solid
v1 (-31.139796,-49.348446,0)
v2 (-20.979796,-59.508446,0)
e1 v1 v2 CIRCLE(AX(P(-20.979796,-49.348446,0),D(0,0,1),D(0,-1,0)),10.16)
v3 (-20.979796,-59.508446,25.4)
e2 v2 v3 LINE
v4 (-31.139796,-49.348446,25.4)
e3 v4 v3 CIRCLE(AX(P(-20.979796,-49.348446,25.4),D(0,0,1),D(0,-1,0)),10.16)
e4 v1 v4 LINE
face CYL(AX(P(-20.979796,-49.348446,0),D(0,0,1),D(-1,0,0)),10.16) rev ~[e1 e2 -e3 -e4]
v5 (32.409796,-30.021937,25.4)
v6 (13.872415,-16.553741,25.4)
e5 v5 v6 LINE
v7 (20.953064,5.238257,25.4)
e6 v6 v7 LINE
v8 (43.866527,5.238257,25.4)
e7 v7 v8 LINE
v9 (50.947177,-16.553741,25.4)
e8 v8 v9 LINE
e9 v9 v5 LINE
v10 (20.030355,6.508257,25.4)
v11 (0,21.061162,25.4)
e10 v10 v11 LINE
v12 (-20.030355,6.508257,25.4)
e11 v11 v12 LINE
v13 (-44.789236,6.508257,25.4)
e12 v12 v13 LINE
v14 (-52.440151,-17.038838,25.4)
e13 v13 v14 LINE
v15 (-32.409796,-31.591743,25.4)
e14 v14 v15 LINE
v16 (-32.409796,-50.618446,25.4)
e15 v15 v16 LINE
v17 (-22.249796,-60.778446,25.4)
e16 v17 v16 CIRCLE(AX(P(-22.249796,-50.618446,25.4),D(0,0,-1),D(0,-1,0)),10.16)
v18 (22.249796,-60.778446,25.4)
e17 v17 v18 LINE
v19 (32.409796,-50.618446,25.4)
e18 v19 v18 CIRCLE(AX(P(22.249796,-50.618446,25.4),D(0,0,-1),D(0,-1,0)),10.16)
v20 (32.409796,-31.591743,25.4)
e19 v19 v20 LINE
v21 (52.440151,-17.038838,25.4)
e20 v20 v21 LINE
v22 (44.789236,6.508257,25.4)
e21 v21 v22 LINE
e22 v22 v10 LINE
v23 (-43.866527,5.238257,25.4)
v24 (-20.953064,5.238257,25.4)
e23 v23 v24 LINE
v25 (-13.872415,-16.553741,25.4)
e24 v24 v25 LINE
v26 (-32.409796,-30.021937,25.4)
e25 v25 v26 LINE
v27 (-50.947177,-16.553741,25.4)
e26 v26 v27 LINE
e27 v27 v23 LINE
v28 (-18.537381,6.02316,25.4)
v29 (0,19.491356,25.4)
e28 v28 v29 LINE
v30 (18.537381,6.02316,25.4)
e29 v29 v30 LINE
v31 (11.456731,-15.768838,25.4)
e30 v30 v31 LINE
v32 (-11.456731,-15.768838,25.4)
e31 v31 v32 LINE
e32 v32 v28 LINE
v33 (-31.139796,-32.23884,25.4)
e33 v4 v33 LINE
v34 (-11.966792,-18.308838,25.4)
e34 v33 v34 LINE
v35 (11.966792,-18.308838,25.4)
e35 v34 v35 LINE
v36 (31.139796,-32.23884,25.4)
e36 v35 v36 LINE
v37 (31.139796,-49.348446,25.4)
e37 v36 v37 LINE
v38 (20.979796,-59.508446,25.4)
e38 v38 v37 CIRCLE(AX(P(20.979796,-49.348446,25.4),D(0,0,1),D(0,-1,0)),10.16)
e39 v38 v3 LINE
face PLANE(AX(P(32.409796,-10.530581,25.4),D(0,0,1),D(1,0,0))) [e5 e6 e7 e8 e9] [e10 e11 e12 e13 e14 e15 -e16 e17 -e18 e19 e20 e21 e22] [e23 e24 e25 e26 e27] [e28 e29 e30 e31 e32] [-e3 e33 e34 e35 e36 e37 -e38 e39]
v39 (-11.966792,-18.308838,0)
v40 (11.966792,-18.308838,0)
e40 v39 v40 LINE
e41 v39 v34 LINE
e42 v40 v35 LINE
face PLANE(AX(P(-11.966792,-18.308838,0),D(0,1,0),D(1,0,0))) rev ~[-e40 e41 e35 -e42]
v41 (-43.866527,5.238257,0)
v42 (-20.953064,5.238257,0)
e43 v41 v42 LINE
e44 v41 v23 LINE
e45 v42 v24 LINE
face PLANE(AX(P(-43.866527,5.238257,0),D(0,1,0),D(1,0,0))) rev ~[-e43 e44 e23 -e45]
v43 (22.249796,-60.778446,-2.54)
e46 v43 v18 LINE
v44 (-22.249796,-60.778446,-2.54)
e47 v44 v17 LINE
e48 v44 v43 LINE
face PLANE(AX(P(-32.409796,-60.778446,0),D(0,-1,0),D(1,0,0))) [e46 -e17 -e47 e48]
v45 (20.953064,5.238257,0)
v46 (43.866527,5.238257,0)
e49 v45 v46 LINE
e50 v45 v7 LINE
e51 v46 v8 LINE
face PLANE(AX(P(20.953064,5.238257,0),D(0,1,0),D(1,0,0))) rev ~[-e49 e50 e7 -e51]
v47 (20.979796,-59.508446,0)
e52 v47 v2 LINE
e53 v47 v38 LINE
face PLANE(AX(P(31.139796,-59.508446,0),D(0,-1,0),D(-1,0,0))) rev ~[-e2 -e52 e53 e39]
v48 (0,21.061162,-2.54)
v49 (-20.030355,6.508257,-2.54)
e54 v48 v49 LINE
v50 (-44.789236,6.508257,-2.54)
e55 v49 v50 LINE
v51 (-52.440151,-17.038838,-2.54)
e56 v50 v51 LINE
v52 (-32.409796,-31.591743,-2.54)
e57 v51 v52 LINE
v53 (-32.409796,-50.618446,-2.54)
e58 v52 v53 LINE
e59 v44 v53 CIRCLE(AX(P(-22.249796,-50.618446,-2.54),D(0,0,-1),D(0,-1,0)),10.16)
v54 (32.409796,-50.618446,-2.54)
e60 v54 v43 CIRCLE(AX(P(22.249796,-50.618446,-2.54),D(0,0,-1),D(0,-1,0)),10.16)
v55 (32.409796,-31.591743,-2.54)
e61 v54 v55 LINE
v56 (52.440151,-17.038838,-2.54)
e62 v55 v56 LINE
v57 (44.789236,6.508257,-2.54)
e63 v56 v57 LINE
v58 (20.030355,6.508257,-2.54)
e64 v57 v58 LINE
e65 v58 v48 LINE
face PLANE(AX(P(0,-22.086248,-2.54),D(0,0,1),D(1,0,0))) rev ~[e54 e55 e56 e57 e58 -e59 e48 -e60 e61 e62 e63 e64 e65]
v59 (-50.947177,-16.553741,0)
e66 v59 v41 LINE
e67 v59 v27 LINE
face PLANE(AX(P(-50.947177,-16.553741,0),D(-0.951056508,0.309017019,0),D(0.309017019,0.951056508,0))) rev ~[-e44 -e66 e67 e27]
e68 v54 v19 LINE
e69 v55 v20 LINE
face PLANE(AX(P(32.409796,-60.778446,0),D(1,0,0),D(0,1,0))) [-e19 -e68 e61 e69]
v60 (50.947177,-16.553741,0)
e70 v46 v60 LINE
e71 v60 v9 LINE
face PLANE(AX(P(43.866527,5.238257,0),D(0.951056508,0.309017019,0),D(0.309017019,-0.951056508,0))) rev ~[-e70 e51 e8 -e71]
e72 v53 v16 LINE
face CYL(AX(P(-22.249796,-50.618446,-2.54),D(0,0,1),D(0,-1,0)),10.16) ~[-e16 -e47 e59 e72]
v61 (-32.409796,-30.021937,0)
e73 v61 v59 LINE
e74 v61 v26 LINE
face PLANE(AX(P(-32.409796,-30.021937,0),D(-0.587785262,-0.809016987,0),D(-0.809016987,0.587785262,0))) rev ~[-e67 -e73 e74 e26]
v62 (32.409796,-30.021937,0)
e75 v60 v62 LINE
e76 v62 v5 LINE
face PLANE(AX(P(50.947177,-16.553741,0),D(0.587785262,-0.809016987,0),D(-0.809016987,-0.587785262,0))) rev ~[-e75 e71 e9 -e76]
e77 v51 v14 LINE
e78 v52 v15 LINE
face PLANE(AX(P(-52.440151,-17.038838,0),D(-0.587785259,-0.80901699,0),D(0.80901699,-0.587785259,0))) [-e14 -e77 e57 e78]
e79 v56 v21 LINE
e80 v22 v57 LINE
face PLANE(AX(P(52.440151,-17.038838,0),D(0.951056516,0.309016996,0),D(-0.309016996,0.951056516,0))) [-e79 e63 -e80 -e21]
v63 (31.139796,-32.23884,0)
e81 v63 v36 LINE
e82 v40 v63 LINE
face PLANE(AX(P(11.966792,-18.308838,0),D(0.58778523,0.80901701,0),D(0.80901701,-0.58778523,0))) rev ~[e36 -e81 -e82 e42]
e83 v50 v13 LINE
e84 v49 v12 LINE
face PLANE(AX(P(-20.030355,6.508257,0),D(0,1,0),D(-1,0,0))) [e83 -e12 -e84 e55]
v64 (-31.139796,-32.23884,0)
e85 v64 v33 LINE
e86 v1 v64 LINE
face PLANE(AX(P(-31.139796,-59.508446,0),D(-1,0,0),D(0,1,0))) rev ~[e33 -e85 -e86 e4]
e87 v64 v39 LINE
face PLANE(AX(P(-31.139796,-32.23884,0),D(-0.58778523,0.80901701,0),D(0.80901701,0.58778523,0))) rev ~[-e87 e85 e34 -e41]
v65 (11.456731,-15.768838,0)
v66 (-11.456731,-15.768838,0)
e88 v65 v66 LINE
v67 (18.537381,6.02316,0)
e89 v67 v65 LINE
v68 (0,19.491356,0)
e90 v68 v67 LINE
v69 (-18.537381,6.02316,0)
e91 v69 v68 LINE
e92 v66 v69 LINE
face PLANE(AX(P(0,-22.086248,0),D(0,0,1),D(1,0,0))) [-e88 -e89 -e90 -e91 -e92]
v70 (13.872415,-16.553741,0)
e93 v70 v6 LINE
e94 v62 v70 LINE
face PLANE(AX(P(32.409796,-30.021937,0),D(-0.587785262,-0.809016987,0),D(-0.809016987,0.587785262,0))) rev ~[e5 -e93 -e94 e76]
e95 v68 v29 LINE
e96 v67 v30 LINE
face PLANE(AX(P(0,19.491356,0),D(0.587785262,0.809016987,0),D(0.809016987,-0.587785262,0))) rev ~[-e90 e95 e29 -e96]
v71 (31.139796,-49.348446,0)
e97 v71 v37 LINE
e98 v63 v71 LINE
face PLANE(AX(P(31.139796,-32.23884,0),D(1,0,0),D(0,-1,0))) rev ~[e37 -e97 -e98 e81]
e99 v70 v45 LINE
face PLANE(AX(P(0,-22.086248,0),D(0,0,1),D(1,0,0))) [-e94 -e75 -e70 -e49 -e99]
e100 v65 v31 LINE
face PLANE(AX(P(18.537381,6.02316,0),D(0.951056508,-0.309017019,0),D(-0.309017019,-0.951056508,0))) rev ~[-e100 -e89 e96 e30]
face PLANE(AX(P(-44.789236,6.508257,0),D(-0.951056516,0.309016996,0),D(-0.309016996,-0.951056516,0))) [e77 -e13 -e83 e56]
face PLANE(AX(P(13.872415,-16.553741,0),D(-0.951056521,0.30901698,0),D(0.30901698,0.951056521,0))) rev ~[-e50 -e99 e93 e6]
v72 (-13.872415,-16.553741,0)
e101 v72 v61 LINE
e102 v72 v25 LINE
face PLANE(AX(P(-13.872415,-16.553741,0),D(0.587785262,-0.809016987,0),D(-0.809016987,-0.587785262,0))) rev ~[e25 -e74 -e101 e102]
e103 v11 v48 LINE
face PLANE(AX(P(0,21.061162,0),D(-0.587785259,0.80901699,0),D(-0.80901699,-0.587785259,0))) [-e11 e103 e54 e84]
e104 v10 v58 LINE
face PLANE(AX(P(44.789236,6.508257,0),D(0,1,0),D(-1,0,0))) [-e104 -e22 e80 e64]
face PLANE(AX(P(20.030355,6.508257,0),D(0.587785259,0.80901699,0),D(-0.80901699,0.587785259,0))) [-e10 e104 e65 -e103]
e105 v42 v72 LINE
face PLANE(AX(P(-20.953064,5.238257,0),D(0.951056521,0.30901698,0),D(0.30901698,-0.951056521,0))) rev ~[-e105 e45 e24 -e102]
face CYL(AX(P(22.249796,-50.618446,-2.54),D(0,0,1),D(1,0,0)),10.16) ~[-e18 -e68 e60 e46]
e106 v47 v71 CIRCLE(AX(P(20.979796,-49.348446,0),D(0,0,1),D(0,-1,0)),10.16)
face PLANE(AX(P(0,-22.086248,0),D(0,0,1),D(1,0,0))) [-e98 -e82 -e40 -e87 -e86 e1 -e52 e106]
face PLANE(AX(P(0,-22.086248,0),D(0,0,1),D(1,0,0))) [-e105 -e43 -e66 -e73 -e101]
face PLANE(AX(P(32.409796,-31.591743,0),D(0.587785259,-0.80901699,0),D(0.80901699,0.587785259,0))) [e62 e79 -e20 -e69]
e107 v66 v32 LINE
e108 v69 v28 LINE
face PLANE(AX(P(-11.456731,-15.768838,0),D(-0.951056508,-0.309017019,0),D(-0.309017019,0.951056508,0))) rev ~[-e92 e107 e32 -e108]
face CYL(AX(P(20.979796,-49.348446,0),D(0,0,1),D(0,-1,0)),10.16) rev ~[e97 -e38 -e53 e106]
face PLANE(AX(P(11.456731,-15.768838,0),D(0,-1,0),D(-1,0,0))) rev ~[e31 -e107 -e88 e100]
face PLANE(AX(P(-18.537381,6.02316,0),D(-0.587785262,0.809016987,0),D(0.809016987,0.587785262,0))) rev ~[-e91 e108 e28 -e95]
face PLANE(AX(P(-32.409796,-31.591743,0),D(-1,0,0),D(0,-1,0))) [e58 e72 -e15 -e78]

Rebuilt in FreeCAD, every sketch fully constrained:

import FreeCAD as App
import Part
import Sketcher
from FreeCAD import Vector
Q = App.Units.Quantity


def edges_at(feature, points):
    """Names of the edges that pass closest to the given points."""
    edges = feature.Shape.Edges
    near = lambda p: min(range(len(edges)), key=lambda i: edges[i].distToShape(Part.Vertex(*p))[0])
    return sorted({f"Edge{near(p) + 1}" for p in points})


def add_polygon(sketch, points):
    """Adds a closed chain of lines whose ends are joined by coincident constraints."""
    first, n = sketch.GeometryCount, len(points)
    for a, b in zip(points, points[1:] + points[:1]):
        sketch.addGeometry(Part.LineSegment(App.Vector(*a, 0), App.Vector(*b, 0)), False)
    for i in range(n):
        sketch.addConstraint(Sketcher.Constraint("Coincident", first + i, 2, first + (i + 1) % n, 1))

doc = App.newDocument("Part")
body = doc.addObject("PartDesign::Body", "Body")

sketch1 = body.newObject("Sketcher::SketchObject", "Sketch")
sketch1.AttachmentSupport = (doc.getObject("XY_Plane"), [""])
sketch1.MapMode = "FlatFace"
add_polygon(sketch1, [(44.789236, 6.508257), (20.030355, 6.508257), (0, 21.061162), (-20.030355, 6.508257), (-44.789236, 6.508257), (-52.440151, -17.038838), (-32.409796, -31.591743), (-32.409796, -60.778446), (32.409796, -60.778446), (32.409796, -31.591743), (52.440151, -17.038838)])
add_polygon(sketch1, [(11.966792, -18.308838), (31.139796, -32.23884), (31.139796, -59.508446), (-31.139796, -59.508446), (-31.139796, -32.23884), (-11.966792, -18.308838)])
add_polygon(sketch1, [(-50.947177, -16.553741), (-43.866527, 5.238257), (-20.953064, 5.238257), (-13.872415, -16.553741), (-32.409796, -30.021937)])
add_polygon(sketch1, [(-11.456731, -15.768838), (-18.537381, 6.02316), (0, 19.491356), (18.537381, 6.02316), (11.456731, -15.768838)])
add_polygon(sketch1, [(13.872415, -16.553741), (20.953064, 5.238257), (43.866527, 5.238257), (50.947177, -16.553741), (32.409796, -30.021937)])
sketch1.addConstraint([
    Sketcher.Constraint("Horizontal", 0),
    Sketcher.Constraint("Horizontal", 3),
    Sketcher.Constraint("Vertical", 6),
    Sketcher.Constraint("Horizontal", 7),
    Sketcher.Constraint("Vertical", 8),
    Sketcher.Constraint("Vertical", 12),
    Sketcher.Constraint("Horizontal", 13),
    Sketcher.Constraint("Vertical", 14),
    Sketcher.Constraint("Horizontal", 16),
    Sketcher.Constraint("Horizontal", 18),
    Sketcher.Constraint("Horizontal", 26),
    Sketcher.Constraint("Horizontal", 28),
    Sketcher.Constraint("Symmetric", 0, 2, 2, 2, -2),
    Sketcher.Constraint("Symmetric", 5, 2, 8, 2, -2),
    Sketcher.Constraint("Symmetric", 4, 2, 9, 2, -2),
    Sketcher.Constraint("Symmetric", 11, 2, 14, 2, -2),
    Sketcher.Constraint("Symmetric", 22, 2, 24, 2, -2),
    Sketcher.Constraint("Symmetric", 18, 2, 27, 2, -2),
    Sketcher.Constraint("Symmetric", 21, 2, 29, 2, -2),
    Sketcher.Constraint("Symmetric", 20, 2, 30, 2, -2),
    Sketcher.Constraint("Symmetric", 19, 2, 31, 2, -2),
    Sketcher.Constraint("PointOnObject", 1, 2, -2),
    Sketcher.Constraint("PointOnObject", 23, 2, -2),
    Sketcher.Constraint("Parallel", 1, 5),
    Sketcher.Constraint("Parallel", 5, 11),
    Sketcher.Constraint("Parallel", 9, 15),
    Sketcher.Constraint("Parallel", 4, 17),
    Sketcher.Constraint("Parallel", 10, 19),
    Sketcher.Constraint("Parallel", 15, 20),
    Sketcher.Constraint("Parallel", 11, 21),
    Sketcher.Constraint("Parallel", 19, 22),
    Sketcher.Constraint("Parallel", 20, 23),
    Sketcher.Constraint("Parallel", 17, 25),
    Sketcher.Constraint("Parallel", 25, 27),
    Sketcher.Constraint("Parallel", 22, 29),
    Sketcher.Constraint("Horizontal", 19, 2, 21, 2),
    Sketcher.Constraint("Vertical", 6, 2, 20, 2),
    Sketcher.Constraint("Equal", 18, 26),
    Sketcher.Constraint("Equal", 2, 4),
    Sketcher.Constraint("Equal", 4, 5),
    Sketcher.Constraint("Equal", 19, 20),
    Sketcher.Constraint("Equal", 21, 22),
    Sketcher.Constraint("Angle", 1, Q("144 deg")),
    Sketcher.Constraint("Angle", 4, Q("-108 deg")),
    Sketcher.Constraint("DistanceY", 4, 2, 1, 2, Q("1.5 in")),
    Sketcher.Constraint("DistanceY", 16, 2, 25, 2, Q("0.1 in")),
    Sketcher.Constraint("DistanceX", 11, 2, 8, 2, Q("0.05 in")),
    Sketcher.Constraint("DistanceY", 7, 2, 12, 2, Q("0.05 in")),
    Sketcher.Constraint("DistanceY", 15, 2, 4, 2, Q("0.05 in")),
    Sketcher.Constraint("DistanceY", 17, 2, 3, 2, Q("0.05 in")),
    Sketcher.Constraint("DistanceX", 0, 2, 0, 1, Q("24.758881 mm")),
    Sketcher.Constraint("DistanceX", 26, 2, 26, 1, Q("22.913462 mm")),
    Sketcher.Constraint("DistanceY", 14, 2, 19, 2, Q("15.685099 mm")),
    Sketcher.Constraint("DistanceY", 6, 2, 6, 1, Q("29.186703 mm")),
    Sketcher.Constraint("DistanceY", -1, 1, 1, 2, Q("21.061162 mm")),
])
pad1 = body.newObject("PartDesign::Pad", "Pad")
pad1.Profile = sketch1
pad1.Length = Q("1 in")

sketch2 = body.newObject("Sketcher::SketchObject", "Sketch001")
sketch2.AttachmentSupport = (doc.getObject("XY_Plane"), [""])
sketch2.MapMode = "FlatFace"
add_polygon(sketch2, [(0, 21.061162), (-20.030355, 6.508257), (-44.789236, 6.508257), (-52.440151, -17.038838), (-32.409796, -31.591743), (-32.409796, -60.778446), (32.409796, -60.778446), (32.409796, -31.591743), (52.440151, -17.038838), (44.789236, 6.508257), (20.030355, 6.508257)])
sketch2.addConstraint([
    Sketcher.Constraint("Horizontal", 1),
    Sketcher.Constraint("Vertical", 4),
    Sketcher.Constraint("Horizontal", 5),
    Sketcher.Constraint("Vertical", 6),
    Sketcher.Constraint("Horizontal", 9),
    Sketcher.Constraint("Symmetric", 3, 2, 6, 2, -2),
    Sketcher.Constraint("Symmetric", 2, 2, 7, 2, -2),
    Sketcher.Constraint("Symmetric", 1, 2, 8, 2, -2),
    Sketcher.Constraint("PointOnObject", 10, 2, -2),
    Sketcher.Constraint("Parallel", 0, 7),
    Sketcher.Constraint("Parallel", 3, 10),
    Sketcher.Constraint("Equal", 0, 2),
    Sketcher.Constraint("Equal", 2, 3),
    Sketcher.Constraint("Angle", 0, Q("-144 deg")),
    Sketcher.Constraint("Angle", 2, Q("-108 deg")),
    Sketcher.Constraint("DistanceY", 3, 2, 1, 2, Q("1.5 in")),
    Sketcher.Constraint("DistanceX", 1, 2, 1, 1, Q("24.758881 mm")),
    Sketcher.Constraint("DistanceY", 4, 2, 4, 1, Q("29.186703 mm")),
    Sketcher.Constraint("DistanceY", -1, 1, 10, 2, Q("21.061162 mm")),
])
pad2 = body.newObject("PartDesign::Pad", "Pad001")
pad2.Profile = sketch2
pad2.Length = Q("0.1 in")
pad2.Reversed = True
doc.recompute()

fillet = body.newObject("PartDesign::Fillet", "Fillet")
fillet.Base = (pad2, edges_at(pad2, [
    (32.41, -60.778, 11.43),
    (-32.41, -60.778, 11.43),
    (-31.14, -59.508, 12.7),
    (31.14, -59.508, 12.7),
]))
fillet.Radius = Q("0.4 in")

doc.recompute()
